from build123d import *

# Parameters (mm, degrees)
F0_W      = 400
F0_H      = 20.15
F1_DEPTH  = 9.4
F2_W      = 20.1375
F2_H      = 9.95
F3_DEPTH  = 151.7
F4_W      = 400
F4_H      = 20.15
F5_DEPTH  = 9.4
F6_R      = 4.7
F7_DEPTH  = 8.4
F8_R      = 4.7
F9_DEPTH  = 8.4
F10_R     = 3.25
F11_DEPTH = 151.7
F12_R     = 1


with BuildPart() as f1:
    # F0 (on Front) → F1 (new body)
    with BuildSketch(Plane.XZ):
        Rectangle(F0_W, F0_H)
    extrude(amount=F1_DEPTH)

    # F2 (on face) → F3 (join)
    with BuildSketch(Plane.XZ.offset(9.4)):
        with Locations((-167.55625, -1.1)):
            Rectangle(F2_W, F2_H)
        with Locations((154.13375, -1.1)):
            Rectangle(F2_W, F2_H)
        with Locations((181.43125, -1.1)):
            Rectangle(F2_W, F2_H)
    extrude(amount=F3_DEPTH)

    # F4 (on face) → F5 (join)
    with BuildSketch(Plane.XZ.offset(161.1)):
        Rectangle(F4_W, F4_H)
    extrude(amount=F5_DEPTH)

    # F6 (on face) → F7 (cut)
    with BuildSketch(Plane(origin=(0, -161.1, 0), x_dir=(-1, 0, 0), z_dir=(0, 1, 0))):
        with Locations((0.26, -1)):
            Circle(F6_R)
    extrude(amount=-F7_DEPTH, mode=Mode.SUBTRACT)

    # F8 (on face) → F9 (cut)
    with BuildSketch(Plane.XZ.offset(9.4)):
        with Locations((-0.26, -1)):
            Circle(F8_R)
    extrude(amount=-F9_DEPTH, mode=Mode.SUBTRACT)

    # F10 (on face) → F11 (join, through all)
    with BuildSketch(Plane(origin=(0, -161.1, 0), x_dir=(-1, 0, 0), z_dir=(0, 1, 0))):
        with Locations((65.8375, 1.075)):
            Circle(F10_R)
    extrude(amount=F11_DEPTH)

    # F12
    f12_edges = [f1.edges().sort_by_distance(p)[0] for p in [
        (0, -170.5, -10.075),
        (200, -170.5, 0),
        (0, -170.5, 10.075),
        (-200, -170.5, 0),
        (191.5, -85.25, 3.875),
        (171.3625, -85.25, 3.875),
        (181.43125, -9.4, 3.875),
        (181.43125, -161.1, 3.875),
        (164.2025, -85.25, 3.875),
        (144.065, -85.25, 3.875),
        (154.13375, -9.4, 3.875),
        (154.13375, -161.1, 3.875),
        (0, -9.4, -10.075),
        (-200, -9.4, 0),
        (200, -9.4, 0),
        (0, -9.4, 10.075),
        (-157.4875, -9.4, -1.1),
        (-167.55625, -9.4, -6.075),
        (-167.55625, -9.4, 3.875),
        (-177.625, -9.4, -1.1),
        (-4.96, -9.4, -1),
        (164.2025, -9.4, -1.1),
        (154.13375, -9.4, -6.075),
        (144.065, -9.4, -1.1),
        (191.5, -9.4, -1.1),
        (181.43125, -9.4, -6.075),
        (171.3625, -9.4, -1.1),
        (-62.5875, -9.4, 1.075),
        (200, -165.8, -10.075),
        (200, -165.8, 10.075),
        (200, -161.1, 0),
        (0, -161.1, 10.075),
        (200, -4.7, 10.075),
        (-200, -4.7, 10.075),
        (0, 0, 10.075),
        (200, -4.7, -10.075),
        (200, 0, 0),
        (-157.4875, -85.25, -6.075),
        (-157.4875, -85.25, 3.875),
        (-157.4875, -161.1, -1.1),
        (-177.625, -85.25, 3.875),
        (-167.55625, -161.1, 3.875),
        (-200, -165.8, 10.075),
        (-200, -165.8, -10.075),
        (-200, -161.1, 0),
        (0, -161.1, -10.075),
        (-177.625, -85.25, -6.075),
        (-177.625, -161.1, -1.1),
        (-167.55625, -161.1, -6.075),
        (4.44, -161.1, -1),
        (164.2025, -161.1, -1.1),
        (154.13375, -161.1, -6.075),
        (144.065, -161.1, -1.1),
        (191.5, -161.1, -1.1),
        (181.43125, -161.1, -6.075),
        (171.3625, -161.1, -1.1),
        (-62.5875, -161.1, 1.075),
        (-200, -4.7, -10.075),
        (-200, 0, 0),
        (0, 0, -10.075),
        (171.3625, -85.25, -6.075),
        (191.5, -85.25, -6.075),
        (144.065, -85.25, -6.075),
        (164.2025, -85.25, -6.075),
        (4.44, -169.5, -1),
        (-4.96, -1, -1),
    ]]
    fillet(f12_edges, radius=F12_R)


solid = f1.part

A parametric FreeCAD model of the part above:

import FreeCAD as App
import Part
import Sketcher

doc = App.newDocument("Part")
body = doc.addObject("PartDesign::Body", "Body")

sketch1 = doc.addObject("Sketcher::SketchObject", "Sketch")
body.addObject(sketch1)
sketch1.AttachmentSupport = (doc.XZ_Plane, [""])
sketch1.MapMode = "FlatFace"
sketch1.addGeometry([
    Part.LineSegment(App.Vector(-200, 10, 0), App.Vector(-200, -10, 0)),
    Part.LineSegment(App.Vector(-200, -10, 0), App.Vector(200, -10, 0)),
    Part.LineSegment(App.Vector(200, -10, 0), App.Vector(200, 10, 0)),
    Part.LineSegment(App.Vector(200, 10, 0), App.Vector(-200, 10, 0)),
], False)
sketch1.addConstraint([
    Sketcher.Constraint("Coincident", 0, 2, 1, 1),
    Sketcher.Constraint("Coincident", 1, 2, 2, 1),
    Sketcher.Constraint("Coincident", 2, 2, 3, 1),
    Sketcher.Constraint("Coincident", 3, 2, 0, 1),
    Sketcher.Constraint("Vertical", 0),
    Sketcher.Constraint("Horizontal", 1),
    Sketcher.Constraint("Vertical", 2),
    Sketcher.Constraint("Horizontal", 3),
    Sketcher.Constraint("Symmetric", 0, 2, 2, 2, -1, 1),
    Sketcher.Constraint("DistanceX", 1, 1, 1, 2, 400.0),
    Sketcher.Constraint("DistanceY", 0, 2, 0, 1, 20.15),
])
pad1 = doc.addObject("PartDesign::Pad", "Pad")
body.addObject(pad1)
pad1.Profile = sketch1
pad1.Length = 9.4

sketch2 = doc.addObject("Sketcher::SketchObject", "Sketch001")
body.addObject(sketch2)
sketch2.AttachmentSupport = (doc.XZ_Plane, [""])
sketch2.MapMode = "FlatFace"
sketch2.AttachmentOffset = App.Placement(App.Vector(0, 0, 9.4), App.Rotation())
sketch2.addGeometry([
    Part.LineSegment(App.Vector(-178, 4, 0), App.Vector(-178, -6, 0)),
    Part.LineSegment(App.Vector(-178, -6, 0), App.Vector(-157, -6, 0)),
    Part.LineSegment(App.Vector(-157, -6, 0), App.Vector(-157, 4, 0)),
    Part.LineSegment(App.Vector(-157, 4, 0), App.Vector(-178, 4, 0)),
    Part.LineSegment(App.Vector(144, 4, 0), App.Vector(144, -6, 0)),
    Part.LineSegment(App.Vector(144, -6, 0), App.Vector(164, -6, 0)),
    Part.LineSegment(App.Vector(164, -6, 0), App.Vector(164, 4, 0)),
    Part.LineSegment(App.Vector(164, 4, 0), App.Vector(144, 4, 0)),
    Part.LineSegment(App.Vector(171, 4, 0), App.Vector(171, -6, 0)),
    Part.LineSegment(App.Vector(171, -6, 0), App.Vector(192, -6, 0)),
    Part.LineSegment(App.Vector(192, -6, 0), App.Vector(192, 4, 0)),
    Part.LineSegment(App.Vector(192, 4, 0), App.Vector(171, 4, 0)),
], False)
sketch2.addConstraint([
    Sketcher.Constraint("Coincident", 0, 2, 1, 1),
    Sketcher.Constraint("Coincident", 1, 2, 2, 1),
    Sketcher.Constraint("Coincident", 2, 2, 3, 1),
    Sketcher.Constraint("Coincident", 3, 2, 0, 1),
    Sketcher.Constraint("Coincident", 4, 2, 5, 1),
    Sketcher.Constraint("Coincident", 5, 2, 6, 1),
    Sketcher.Constraint("Coincident", 6, 2, 7, 1),
    Sketcher.Constraint("Coincident", 7, 2, 4, 1),
    Sketcher.Constraint("Coincident", 8, 2, 9, 1),
    Sketcher.Constraint("Coincident", 9, 2, 10, 1),
    Sketcher.Constraint("Coincident", 10, 2, 11, 1),
    Sketcher.Constraint("Coincident", 11, 2, 8, 1),
    Sketcher.Constraint("Vertical", 0),
    Sketcher.Constraint("Horizontal", 1),
    Sketcher.Constraint("Vertical", 2),
    Sketcher.Constraint("Horizontal", 3),
    Sketcher.Constraint("Vertical", 4),
    Sketcher.Constraint("Horizontal", 5),
    Sketcher.Constraint("Vertical", 6),
    Sketcher.Constraint("Horizontal", 7),
    Sketcher.Constraint("Vertical", 8),
    Sketcher.Constraint("Horizontal", 9),
    Sketcher.Constraint("Vertical", 10),
    Sketcher.Constraint("Horizontal", 11),
    Sketcher.Constraint("Horizontal", 1, 2, 4, 2),
    Sketcher.Constraint("Horizontal", 3, 2, 6, 2),
    Sketcher.Constraint("Horizontal", 5, 2, 8, 2),
    Sketcher.Constraint("Horizontal", 7, 2, 10, 2),
    Sketcher.Constraint("Equal", 3, 5),
    Sketcher.Constraint("Equal", 7, 9),
    Sketcher.Constraint("DistanceY", 0, 2, 0, 1, 9.95),
    Sketcher.Constraint("DistanceX", -1, 1, 9, 2, 191.5),
    Sketcher.Constraint("DistanceX", 0, 2, 4, 2, 321.69),
    Sketcher.Constraint("DistanceX", 5, 2, 8, 2, 7.16),
    Sketcher.Constraint("DistanceX", 1, 1, 1, 2, 20.1375),
    Sketcher.Constraint("DistanceY", 0, 2, -1, 1, 6.075),
])
pad2 = doc.addObject("PartDesign::Pad", "Pad001")
body.addObject(pad2)
pad2.Profile = sketch2
pad2.Length = 151.7

sketch3 = doc.addObject("Sketcher::SketchObject", "Sketch002")
body.addObject(sketch3)
sketch3.AttachmentSupport = (doc.XZ_Plane, [""])
sketch3.MapMode = "FlatFace"
sketch3.AttachmentOffset = App.Placement(App.Vector(0, 0, 161.1), App.Rotation())
sketch3.addGeometry([
    Part.LineSegment(App.Vector(-200, 10, 0), App.Vector(-200, -10, 0)),
    Part.LineSegment(App.Vector(-200, -10, 0), App.Vector(200, -10, 0)),
    Part.LineSegment(App.Vector(200, -10, 0), App.Vector(200, 10, 0)),
    Part.LineSegment(App.Vector(200, 10, 0), App.Vector(-200, 10, 0)),
], False)
sketch3.addConstraint([
    Sketcher.Constraint("Coincident", 0, 2, 1, 1),
    Sketcher.Constraint("Coincident", 1, 2, 2, 1),
    Sketcher.Constraint("Coincident", 2, 2, 3, 1),
    Sketcher.Constraint("Coincident", 3, 2, 0, 1),
    Sketcher.Constraint("Vertical", 0),
    Sketcher.Constraint("Horizontal", 1),
    Sketcher.Constraint("Vertical", 2),
    Sketcher.Constraint("Horizontal", 3),
    Sketcher.Constraint("Symmetric", 0, 2, 2, 2, -1, 1),
    Sketcher.Constraint("DistanceX", 1, 1, 1, 2, 400.0),
    Sketcher.Constraint("DistanceY", 0, 2, 0, 1, 20.15),
])
pad3 = doc.addObject("PartDesign::Pad", "Pad002")
body.addObject(pad3)
pad3.Profile = sketch3
pad3.Length = 9.4

sketch4 = doc.addObject("Sketcher::SketchObject", "Sketch003")
body.addObject(sketch4)
sketch4.AttachmentSupport = (doc.XZ_Plane, [""])
sketch4.MapMode = "FlatFace"
sketch4.AttachmentOffset = App.Placement(App.Vector(0, 0, 161.1), App.Rotation())
sketch4.addGeometry(Part.Circle(App.Vector(-0.3, -1, 0), App.Vector(0, 0, 1), 4.7), False)
sketch4.addConstraint([
    Sketcher.Constraint("Diameter", 0, 9.4),
    Sketcher.Constraint("DistanceY", 0, 3, -1, 1, 1.0),
    Sketcher.Constraint("DistanceX", 0, 3, -1, 1, 0.26),
])
pocket1 = doc.addObject("PartDesign::Pocket", "Pocket")
body.addObject(pocket1)
pocket1.Profile = sketch4
pocket1.Length = 8.4
pocket1.Reversed = True

sketch5 = doc.addObject("Sketcher::SketchObject", "Sketch004")
body.addObject(sketch5)
sketch5.AttachmentSupport = (doc.XZ_Plane, [""])
sketch5.MapMode = "FlatFace"
sketch5.AttachmentOffset = App.Placement(App.Vector(0, 0, 9.4), App.Rotation())
sketch5.addGeometry(Part.Circle(App.Vector(-0.3, -1, 0), App.Vector(0, 0, 1), 4.7), False)
sketch5.addConstraint([
    Sketcher.Constraint("Diameter", 0, 9.4),
    Sketcher.Constraint("DistanceY", 0, 3, -1, 1, 1.0),
    Sketcher.Constraint("DistanceX", 0, 3, -1, 1, 0.26),
])
pocket2 = doc.addObject("PartDesign::Pocket", "Pocket001")
body.addObject(pocket2)
pocket2.Profile = sketch5
pocket2.Length = 8.4

sketch6 = doc.addObject("Sketcher::SketchObject", "Sketch005")
body.addObject(sketch6)
sketch6.AttachmentSupport = (doc.XZ_Plane, [""])
sketch6.MapMode = "FlatFace"
sketch6.AttachmentOffset = App.Placement(App.Vector(0, 0, 161.1), App.Rotation())
sketch6.addGeometry(Part.Circle(App.Vector(-65.8, 1.1, 0), App.Vector(0, 0, 1), 3.2), False)
sketch6.addConstraint([
    Sketcher.Constraint("Diameter", 0, 6.5),
    Sketcher.Constraint("DistanceY", -1, 1, 0, 3, 1.075),
    Sketcher.Constraint("DistanceX", 0, 3, -1, 1, 65.8375),
])
pad4 = doc.addObject("PartDesign::Pad", "Pad003")
body.addObject(pad4)
pad4.Profile = sketch6
pad4.Type = "UpToLast"
pad4.Reversed = True
doc.recompute()

fillet = doc.addObject("PartDesign::Fillet", "Fillet")
body.addObject(fillet)
fillet.Base = (pad4, ["Edge1"])
fillet.UseAllEdges = True
fillet.Radius = 1

doc.recompute()
